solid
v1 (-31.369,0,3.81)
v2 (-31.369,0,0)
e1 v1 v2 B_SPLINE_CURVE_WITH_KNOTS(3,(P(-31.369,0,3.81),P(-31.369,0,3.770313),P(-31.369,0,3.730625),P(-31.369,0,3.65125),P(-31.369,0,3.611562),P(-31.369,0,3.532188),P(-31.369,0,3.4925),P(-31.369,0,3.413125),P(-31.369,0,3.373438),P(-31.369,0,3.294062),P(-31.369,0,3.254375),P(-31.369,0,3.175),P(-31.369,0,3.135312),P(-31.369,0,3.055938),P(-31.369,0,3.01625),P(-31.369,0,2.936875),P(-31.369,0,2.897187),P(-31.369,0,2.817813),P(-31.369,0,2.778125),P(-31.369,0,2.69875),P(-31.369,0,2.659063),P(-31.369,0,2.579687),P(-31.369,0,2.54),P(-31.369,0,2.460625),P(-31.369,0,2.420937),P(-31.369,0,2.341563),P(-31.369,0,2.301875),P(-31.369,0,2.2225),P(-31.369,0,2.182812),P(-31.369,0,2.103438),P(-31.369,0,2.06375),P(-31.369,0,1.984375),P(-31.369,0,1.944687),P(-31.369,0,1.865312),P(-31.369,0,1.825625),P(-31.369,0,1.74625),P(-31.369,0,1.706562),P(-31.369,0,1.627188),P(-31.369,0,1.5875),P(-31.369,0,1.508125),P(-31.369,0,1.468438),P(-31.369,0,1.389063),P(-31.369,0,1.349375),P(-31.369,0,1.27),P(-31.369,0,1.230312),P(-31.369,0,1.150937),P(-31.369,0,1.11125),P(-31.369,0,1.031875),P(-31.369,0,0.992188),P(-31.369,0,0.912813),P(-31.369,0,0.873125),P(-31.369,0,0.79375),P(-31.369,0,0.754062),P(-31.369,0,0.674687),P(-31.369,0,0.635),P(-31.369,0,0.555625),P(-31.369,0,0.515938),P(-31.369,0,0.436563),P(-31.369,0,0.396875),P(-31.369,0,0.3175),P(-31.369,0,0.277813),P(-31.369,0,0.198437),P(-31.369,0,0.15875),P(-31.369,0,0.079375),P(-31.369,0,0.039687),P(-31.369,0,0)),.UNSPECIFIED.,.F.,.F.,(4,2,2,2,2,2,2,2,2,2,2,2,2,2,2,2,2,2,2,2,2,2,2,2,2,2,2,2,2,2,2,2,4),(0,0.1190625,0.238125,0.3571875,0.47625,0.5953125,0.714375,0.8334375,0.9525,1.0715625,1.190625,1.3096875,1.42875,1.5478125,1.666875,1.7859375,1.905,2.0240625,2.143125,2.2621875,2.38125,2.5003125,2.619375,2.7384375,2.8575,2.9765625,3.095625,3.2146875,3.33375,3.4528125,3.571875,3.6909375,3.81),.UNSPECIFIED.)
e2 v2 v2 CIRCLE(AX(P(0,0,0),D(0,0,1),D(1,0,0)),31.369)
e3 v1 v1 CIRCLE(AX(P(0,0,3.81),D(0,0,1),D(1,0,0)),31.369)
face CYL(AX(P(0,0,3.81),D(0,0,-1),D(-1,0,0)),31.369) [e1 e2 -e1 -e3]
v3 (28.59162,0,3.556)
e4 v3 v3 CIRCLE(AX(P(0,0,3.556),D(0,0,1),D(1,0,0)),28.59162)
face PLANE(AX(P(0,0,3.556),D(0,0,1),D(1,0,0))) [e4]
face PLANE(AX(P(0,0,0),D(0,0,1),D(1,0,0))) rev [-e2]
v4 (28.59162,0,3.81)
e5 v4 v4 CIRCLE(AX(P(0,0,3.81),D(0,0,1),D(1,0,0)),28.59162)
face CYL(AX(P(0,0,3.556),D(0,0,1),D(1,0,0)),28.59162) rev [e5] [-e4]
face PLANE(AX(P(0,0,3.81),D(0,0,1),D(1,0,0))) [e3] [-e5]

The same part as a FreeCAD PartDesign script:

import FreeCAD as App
import Part
import Sketcher
from FreeCAD import Vector
Q = App.Units.Quantity

doc = App.newDocument("Part")
body = doc.addObject("PartDesign::Body", "Body")

# Sketch on XY plane
sketch1 = doc.addObject("Sketcher::SketchObject", "Sketch")
body.addObject(sketch1)
sketch1.AttachmentSupport = (doc.XY_Plane, [""])
sketch1.MapMode = "FlatFace"
sketch1.addGeometry(Part.Circle(Vector(0, 0, 0), Vector(0, 0, 1), 31), False)
sketch1.addConstraint([
    Sketcher.Constraint("Coincident", 0, 3, -1, 1),
    Sketcher.Constraint("Diameter", 0, Q("2.47 in")),
])
pad1 = doc.addObject("PartDesign::Pad", "Pad")
body.addObject(pad1)
pad1.Profile = sketch1
pad1.Length = Q("0.15 in")

# Sketch on XY plane
sketch2 = doc.addObject("Sketcher::SketchObject", "Sketch001")
body.addObject(sketch2)
sketch2.AttachmentSupport = (doc.XY_Plane, [""])
sketch2.MapMode = "FlatFace"
sketch2.AttachmentOffset = App.Placement(Vector(0, 0, 0.15 * 25.4), App.Rotation())
sketch2.addGeometry(Part.Circle(Vector(0, 0, 0), Vector(0, 0, 1), 29), False)
sketch2.addConstraint([
    Sketcher.Constraint("Coincident", 0, 3, -1, 1),
    Sketcher.Constraint("Diameter", 0, Q("57.18324 mm")),
])
pocket1 = doc.addObject("PartDesign::Pocket", "Pocket")
body.addObject(pocket1)
pocket1.Profile = sketch2
pocket1.Length = Q("0.01 in")

doc.recompute()
